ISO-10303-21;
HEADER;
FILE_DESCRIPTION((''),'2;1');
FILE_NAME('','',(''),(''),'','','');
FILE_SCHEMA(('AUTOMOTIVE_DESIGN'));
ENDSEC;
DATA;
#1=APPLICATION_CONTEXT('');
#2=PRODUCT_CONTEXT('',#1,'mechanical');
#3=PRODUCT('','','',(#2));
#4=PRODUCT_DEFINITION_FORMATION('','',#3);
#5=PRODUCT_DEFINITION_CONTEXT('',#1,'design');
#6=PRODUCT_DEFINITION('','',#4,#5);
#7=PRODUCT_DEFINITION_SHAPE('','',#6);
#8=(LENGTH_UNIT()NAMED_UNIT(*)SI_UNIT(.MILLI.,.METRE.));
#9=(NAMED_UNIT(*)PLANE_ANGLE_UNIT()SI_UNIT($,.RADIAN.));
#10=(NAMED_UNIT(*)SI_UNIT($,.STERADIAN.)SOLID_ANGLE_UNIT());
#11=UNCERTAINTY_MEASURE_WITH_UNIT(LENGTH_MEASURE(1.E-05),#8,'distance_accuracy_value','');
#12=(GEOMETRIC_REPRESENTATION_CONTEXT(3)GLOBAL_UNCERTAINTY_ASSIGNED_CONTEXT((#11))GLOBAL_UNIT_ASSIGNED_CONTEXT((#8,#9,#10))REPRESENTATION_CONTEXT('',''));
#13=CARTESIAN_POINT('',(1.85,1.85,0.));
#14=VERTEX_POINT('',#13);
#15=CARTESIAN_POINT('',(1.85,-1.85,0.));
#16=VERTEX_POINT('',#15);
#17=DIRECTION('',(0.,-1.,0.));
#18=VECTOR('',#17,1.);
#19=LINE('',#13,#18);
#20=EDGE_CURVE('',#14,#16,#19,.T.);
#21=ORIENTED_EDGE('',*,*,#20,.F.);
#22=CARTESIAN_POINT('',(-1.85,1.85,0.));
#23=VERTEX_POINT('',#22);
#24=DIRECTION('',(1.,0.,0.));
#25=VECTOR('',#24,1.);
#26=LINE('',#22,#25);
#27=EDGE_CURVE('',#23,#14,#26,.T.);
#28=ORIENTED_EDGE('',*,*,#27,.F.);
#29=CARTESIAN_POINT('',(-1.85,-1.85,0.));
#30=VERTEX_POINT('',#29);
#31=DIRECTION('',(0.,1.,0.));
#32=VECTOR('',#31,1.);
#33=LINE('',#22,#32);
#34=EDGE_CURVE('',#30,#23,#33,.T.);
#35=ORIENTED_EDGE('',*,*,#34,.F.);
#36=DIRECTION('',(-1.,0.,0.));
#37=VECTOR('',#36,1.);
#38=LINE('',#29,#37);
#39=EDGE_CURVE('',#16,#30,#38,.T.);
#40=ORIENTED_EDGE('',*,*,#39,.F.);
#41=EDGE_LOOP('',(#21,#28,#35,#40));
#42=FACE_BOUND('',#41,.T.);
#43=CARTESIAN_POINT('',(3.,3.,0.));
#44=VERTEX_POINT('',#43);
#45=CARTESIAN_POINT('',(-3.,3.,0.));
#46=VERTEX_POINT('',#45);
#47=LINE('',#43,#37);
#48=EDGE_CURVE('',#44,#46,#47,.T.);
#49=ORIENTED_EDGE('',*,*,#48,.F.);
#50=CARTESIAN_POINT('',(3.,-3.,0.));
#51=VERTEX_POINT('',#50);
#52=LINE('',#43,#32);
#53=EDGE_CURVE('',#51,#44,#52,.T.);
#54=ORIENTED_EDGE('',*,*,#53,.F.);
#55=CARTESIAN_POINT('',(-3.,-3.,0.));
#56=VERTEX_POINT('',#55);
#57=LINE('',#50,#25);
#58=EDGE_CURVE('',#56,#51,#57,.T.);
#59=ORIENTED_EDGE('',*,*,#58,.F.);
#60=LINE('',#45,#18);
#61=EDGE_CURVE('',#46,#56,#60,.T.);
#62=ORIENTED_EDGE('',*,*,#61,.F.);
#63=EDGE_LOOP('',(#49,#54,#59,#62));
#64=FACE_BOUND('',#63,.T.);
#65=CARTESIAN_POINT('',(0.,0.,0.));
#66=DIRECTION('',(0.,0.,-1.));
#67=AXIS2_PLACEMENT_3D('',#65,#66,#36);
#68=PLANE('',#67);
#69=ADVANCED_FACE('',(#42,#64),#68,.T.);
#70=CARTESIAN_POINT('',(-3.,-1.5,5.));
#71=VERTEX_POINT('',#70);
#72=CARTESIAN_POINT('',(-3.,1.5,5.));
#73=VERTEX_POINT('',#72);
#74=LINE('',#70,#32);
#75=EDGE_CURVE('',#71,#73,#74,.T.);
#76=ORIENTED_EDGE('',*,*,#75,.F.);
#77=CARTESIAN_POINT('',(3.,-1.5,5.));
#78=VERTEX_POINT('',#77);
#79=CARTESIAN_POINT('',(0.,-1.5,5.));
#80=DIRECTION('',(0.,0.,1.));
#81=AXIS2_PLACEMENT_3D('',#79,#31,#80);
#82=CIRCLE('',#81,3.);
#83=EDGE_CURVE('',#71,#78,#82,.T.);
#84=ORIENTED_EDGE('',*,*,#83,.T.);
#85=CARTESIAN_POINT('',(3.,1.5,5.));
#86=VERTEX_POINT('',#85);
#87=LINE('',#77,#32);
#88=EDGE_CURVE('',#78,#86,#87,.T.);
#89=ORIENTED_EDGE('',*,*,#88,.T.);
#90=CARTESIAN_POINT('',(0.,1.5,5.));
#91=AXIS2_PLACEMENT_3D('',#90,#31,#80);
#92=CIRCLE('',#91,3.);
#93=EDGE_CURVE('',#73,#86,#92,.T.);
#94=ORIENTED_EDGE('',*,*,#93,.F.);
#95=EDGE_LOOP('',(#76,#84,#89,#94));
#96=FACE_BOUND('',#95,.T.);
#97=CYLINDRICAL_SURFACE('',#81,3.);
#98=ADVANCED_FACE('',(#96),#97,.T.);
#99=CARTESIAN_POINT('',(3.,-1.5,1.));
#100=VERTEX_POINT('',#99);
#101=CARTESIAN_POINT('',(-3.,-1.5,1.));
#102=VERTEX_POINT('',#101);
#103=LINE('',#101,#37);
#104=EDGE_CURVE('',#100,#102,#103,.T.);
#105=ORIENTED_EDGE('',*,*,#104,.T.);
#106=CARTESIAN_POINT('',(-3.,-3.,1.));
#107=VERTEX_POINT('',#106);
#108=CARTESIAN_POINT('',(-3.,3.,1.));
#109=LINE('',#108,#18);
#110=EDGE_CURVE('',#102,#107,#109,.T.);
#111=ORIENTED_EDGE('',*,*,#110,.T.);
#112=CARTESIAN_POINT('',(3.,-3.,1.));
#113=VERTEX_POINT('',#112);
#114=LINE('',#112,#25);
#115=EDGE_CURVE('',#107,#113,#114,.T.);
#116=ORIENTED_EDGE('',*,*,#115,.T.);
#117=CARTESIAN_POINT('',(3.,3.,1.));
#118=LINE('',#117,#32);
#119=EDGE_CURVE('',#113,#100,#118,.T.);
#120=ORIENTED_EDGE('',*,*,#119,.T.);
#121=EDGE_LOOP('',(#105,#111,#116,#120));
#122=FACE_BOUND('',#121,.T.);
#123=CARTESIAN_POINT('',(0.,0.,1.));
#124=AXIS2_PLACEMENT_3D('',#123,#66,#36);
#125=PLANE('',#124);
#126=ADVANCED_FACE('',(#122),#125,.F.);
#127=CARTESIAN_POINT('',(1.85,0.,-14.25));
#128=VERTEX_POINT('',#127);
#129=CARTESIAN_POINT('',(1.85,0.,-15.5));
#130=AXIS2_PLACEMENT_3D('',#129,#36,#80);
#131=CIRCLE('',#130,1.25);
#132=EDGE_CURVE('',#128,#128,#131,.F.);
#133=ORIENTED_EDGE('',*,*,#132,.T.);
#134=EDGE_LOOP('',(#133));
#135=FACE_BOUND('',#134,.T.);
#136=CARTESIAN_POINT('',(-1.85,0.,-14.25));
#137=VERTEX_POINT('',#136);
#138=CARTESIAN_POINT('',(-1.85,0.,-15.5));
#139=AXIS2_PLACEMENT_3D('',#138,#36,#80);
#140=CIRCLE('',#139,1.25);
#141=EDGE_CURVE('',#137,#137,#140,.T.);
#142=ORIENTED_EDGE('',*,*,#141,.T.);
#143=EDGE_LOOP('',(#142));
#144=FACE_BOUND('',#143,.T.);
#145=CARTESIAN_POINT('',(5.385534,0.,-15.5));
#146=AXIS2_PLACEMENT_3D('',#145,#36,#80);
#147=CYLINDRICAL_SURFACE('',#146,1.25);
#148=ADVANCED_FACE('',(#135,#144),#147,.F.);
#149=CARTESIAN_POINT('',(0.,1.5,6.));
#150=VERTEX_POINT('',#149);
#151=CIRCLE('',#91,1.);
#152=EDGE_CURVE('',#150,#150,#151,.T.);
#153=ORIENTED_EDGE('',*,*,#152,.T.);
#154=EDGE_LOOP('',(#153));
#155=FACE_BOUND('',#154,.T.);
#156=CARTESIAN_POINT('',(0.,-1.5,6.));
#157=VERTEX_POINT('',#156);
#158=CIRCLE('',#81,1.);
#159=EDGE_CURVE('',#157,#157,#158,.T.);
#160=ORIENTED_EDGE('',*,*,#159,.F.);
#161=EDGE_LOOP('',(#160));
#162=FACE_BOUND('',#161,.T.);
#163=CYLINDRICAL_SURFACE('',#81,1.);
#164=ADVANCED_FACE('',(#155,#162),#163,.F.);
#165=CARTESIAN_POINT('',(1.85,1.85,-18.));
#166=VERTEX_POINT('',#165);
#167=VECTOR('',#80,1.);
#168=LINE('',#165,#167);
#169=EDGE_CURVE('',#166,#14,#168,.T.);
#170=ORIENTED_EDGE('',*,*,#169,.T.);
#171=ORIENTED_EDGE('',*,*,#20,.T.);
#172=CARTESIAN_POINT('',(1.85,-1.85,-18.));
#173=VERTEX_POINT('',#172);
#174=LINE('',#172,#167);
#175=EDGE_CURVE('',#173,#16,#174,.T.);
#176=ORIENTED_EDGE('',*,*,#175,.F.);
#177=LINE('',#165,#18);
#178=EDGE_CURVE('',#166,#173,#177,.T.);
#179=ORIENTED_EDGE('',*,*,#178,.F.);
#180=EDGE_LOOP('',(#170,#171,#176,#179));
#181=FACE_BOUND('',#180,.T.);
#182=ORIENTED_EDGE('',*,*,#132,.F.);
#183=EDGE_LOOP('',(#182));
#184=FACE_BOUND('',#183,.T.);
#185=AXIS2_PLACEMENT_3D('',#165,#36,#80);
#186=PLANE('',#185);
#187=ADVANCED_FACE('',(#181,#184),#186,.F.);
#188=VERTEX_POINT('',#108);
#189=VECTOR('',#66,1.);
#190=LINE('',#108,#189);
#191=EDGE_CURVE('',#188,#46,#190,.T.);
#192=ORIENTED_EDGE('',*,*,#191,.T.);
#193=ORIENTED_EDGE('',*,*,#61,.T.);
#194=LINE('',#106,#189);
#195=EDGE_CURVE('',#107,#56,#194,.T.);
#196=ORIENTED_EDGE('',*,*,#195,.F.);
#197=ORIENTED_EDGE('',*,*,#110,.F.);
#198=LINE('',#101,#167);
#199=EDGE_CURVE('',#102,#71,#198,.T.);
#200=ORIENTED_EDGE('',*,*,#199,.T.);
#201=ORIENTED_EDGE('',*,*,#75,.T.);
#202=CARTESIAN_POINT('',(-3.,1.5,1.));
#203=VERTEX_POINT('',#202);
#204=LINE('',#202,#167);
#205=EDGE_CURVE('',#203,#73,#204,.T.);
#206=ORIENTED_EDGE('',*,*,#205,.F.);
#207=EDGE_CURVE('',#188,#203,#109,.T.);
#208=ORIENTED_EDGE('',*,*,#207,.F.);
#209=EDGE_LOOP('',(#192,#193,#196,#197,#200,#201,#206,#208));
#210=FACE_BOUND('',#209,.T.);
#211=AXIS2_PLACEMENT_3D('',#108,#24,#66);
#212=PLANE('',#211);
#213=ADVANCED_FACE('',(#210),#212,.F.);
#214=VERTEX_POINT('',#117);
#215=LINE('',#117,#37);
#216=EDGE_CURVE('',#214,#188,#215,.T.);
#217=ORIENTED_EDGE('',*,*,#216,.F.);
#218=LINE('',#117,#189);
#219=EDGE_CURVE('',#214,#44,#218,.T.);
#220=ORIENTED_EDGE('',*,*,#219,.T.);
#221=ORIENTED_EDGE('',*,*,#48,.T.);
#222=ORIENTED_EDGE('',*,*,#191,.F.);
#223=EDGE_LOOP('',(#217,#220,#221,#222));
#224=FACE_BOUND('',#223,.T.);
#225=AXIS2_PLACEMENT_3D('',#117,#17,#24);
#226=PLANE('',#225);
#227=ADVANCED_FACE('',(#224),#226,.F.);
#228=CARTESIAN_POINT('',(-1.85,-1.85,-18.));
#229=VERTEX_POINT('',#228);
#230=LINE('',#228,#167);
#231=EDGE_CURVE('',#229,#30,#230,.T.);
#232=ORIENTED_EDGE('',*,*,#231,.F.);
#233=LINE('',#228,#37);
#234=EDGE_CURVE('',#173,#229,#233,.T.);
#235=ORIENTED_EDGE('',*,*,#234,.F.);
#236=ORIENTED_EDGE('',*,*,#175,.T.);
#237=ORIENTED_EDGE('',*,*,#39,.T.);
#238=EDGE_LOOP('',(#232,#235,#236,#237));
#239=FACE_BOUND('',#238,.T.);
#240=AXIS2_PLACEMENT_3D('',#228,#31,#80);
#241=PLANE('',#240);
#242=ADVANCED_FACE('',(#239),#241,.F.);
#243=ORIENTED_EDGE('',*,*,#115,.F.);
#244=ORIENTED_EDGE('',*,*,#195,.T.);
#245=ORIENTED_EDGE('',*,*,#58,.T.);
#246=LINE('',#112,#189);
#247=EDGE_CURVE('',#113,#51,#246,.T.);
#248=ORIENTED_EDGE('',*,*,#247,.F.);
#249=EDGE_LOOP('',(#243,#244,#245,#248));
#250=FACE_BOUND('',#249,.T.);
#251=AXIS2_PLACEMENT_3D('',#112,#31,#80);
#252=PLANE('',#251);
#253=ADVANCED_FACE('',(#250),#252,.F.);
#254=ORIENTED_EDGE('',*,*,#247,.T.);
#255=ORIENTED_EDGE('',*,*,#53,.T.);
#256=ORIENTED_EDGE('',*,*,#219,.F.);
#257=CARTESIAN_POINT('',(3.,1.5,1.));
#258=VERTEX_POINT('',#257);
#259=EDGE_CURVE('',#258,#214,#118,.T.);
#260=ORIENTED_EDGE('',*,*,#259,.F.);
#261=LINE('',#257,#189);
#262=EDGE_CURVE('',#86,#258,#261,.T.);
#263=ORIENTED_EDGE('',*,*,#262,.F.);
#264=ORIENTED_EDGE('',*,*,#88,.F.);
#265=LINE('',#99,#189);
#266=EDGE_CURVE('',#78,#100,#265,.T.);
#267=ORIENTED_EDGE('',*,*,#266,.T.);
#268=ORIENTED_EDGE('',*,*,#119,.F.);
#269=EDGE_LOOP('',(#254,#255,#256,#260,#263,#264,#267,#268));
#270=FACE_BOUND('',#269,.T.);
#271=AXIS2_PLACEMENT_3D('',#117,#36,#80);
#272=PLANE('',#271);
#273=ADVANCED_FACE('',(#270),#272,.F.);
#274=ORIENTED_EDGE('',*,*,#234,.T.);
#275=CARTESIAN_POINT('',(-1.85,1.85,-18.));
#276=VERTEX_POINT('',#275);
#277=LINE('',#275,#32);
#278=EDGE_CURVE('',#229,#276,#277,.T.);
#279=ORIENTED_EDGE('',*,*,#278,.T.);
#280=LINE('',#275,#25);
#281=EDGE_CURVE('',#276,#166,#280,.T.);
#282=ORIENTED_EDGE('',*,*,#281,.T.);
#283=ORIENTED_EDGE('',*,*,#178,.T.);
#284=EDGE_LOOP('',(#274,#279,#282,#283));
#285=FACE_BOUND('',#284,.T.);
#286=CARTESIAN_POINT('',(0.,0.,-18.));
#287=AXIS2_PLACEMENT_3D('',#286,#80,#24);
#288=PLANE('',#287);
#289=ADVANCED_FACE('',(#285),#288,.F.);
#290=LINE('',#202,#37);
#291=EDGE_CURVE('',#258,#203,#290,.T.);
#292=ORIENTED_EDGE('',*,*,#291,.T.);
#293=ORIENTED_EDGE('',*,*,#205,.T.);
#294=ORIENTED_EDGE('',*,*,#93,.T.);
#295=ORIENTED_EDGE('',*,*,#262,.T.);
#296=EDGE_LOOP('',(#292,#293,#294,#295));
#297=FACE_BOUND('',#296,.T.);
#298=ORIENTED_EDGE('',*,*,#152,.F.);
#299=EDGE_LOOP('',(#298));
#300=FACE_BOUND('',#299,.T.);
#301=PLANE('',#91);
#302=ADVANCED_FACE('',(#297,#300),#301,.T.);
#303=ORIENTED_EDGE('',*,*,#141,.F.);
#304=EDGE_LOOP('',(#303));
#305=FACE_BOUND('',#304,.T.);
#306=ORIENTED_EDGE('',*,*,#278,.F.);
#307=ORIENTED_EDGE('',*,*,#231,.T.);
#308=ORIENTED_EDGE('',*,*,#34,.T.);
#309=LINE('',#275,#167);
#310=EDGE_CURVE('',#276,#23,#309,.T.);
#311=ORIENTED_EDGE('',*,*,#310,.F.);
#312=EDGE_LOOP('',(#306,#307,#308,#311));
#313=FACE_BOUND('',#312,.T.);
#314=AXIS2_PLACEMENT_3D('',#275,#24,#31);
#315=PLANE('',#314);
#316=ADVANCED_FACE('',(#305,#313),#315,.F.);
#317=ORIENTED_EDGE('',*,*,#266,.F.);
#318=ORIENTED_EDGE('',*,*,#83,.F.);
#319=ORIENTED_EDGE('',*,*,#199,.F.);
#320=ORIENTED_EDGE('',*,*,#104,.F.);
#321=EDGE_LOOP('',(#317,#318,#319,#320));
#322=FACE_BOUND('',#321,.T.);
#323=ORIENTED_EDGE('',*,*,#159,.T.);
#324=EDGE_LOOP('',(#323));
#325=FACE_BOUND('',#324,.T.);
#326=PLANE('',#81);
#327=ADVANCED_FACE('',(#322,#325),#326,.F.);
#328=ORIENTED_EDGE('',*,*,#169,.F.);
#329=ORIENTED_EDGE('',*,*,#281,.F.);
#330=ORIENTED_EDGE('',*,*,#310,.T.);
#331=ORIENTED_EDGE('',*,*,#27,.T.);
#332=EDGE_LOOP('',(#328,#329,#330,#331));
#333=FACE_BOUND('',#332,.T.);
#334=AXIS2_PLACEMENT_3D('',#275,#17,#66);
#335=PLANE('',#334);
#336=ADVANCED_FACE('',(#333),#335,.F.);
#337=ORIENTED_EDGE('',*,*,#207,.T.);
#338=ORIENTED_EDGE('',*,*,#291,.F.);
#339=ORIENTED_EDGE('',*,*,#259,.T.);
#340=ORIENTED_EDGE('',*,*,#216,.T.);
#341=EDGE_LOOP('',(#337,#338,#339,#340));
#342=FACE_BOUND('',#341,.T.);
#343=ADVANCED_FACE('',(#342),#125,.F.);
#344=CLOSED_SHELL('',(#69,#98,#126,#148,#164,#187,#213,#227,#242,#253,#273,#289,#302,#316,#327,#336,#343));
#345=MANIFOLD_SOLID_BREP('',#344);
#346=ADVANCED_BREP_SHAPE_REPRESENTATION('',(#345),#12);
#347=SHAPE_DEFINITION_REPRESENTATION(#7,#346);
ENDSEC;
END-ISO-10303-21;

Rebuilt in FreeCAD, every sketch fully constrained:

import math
import FreeCAD as App
import Part
import Sketcher
Q = App.Units.Quantity

doc = App.newDocument("Part")
params = doc.addObject("Spreadsheet::Sheet", "Params")
for row, (alias, value) in enumerate([
    ("sketch1_width", "6 mm"),
    ("pad1_length", "1 mm"),
    ("sketch2_diameter", "2 mm"),
    ("sketch2_radius", "3 mm"),
    ("sketch2_height", "4 mm"),
    ("pad2_length", "1.5 mm"),
    ("pad2_length2", "1.5 mm"),
    ("sketch3_width", "3.7 mm"),
    ("pad3_length", "18 mm"),
    ("sketch4_diameter", "2.5 mm"),
    ("pocket1_length", "3.7 mm"),
], start=1):
    params.set(f"A{row}", alias)
    params.set(f"B{row}", "=" + value)
    params.setAlias(f"B{row}", alias)

body = doc.addObject("PartDesign::Body", "Body")

# Sketch on XY plane
sketch1 = body.newObject("Sketcher::SketchObject", "Sketch")
sketch1.AttachmentSupport = (doc.getObject("XY_Plane"), [""])
sketch1.MapMode = "FlatFace"
sketch1.addGeometry([
    Part.LineSegment(App.Vector(-3, 3, 0), App.Vector(-3, -3, 0)),
    Part.LineSegment(App.Vector(-3, -3, 0), App.Vector(3, -3, 0)),
    Part.LineSegment(App.Vector(3, -3, 0), App.Vector(3, 3, 0)),
    Part.LineSegment(App.Vector(3, 3, 0), App.Vector(-3, 3, 0)),
], False)
sketch1.addConstraint([
    Sketcher.Constraint("Coincident", 0, 2, 1, 1),
    Sketcher.Constraint("Coincident", 1, 2, 2, 1),
    Sketcher.Constraint("Coincident", 2, 2, 3, 1),
    Sketcher.Constraint("Coincident", 3, 2, 0, 1),
    Sketcher.Constraint("Vertical", 0),
    Sketcher.Constraint("Horizontal", 1),
    Sketcher.Constraint("Vertical", 2),
    Sketcher.Constraint("Horizontal", 3),
    Sketcher.Constraint("Symmetric", 0, 2, 2, 2, -1, 1),
    Sketcher.Constraint("Equal", 3, 0),
    Sketcher.Constraint("DistanceX", 1, 1, 1, 2, Q("6 mm")),
])
sketch1.setExpression("Constraints[10]", "Params.sketch1_width")
pad1 = body.newObject("PartDesign::Pad", "Pad")
pad1.Profile = sketch1
pad1.setExpression("Length", "Params.pad1_length")

# Sketch on XZ plane
sketch2 = body.newObject("Sketcher::SketchObject", "Sketch001")
sketch2.AttachmentSupport = (doc.getObject("XZ_Plane"), [""])
sketch2.MapMode = "FlatFace"
sketch2.addGeometry([
    Part.LineSegment(App.Vector(3, 1, 0), App.Vector(-3, 1, 0)),  # 0
    Part.LineSegment(App.Vector(-3, 1, 0), App.Vector(-3, 5, 0)),  # 1
    Part.ArcOfCircle(Part.Circle(App.Vector(0, 5, 0), App.Vector(0, 0, 1), 3), math.radians(0), math.radians(180)),  # 2
    Part.LineSegment(App.Vector(3, 5, 0), App.Vector(3, 1, 0)),  # 3
    Part.Circle(App.Vector(0, 5, 0), App.Vector(0, 0, 1), 1),  # 4
], False)
sketch2.addConstraint([
    Sketcher.Constraint("Coincident", 0, 2, 1, 1),
    Sketcher.Constraint("Tangent", 1, 2, 2, 2),
    Sketcher.Constraint("Tangent", 2, 1, 3, 1),
    Sketcher.Constraint("Coincident", 3, 2, 0, 1),
    Sketcher.Constraint("Horizontal", 0),
    Sketcher.Constraint("Vertical", 1),
    Sketcher.Constraint("Vertical", 3),
    Sketcher.Constraint("Coincident", 4, 3, 2, 3),
    Sketcher.Constraint("PointOnObject", 2, 3, -2),
    Sketcher.Constraint("Diameter", 4, Q("2 mm")),
    Sketcher.Constraint("Radius", 2, Q("3 mm")),
    Sketcher.Constraint("DistanceY", 1, 1, 1, 2, Q("4 mm")),
    Sketcher.Constraint("DistanceY", -1, 1, 2, 3, Q("5 mm")),
])
sketch2.setExpression("Constraints[9]", "Params.sketch2_diameter")
sketch2.setExpression("Constraints[10]", "Params.sketch2_radius")
sketch2.setExpression("Constraints[11]", "Params.sketch2_height")
pad2 = body.newObject("PartDesign::Pad", "Pad001")
pad2.Profile = sketch2
pad2.Type = "TwoLengths"
pad2.setExpression("Length", "Params.pad2_length")
pad2.setExpression("Length2", "Params.pad2_length2")
pad2.Reversed = True

# Sketch on XY plane
sketch3 = body.newObject("Sketcher::SketchObject", "Sketch002")
sketch3.AttachmentSupport = (doc.getObject("XY_Plane"), [""])
sketch3.MapMode = "FlatFace"
sketch3.addGeometry([
    Part.LineSegment(App.Vector(1.9, 1.9, 0), App.Vector(1.9, -1.9, 0)),
    Part.LineSegment(App.Vector(1.9, -1.9, 0), App.Vector(-1.9, -1.9, 0)),
    Part.LineSegment(App.Vector(-1.9, -1.9, 0), App.Vector(-1.9, 1.9, 0)),
    Part.LineSegment(App.Vector(-1.9, 1.9, 0), App.Vector(1.9, 1.9, 0)),
], False)
sketch3.addConstraint([
    Sketcher.Constraint("Coincident", 0, 2, 1, 1),
    Sketcher.Constraint("Coincident", 1, 2, 2, 1),
    Sketcher.Constraint("Coincident", 2, 2, 3, 1),
    Sketcher.Constraint("Coincident", 3, 2, 0, 1),
    Sketcher.Constraint("Vertical", 0),
    Sketcher.Constraint("Horizontal", 1),
    Sketcher.Constraint("Vertical", 2),
    Sketcher.Constraint("Horizontal", 3),
    Sketcher.Constraint("Symmetric", 0, 2, 2, 2, -1, 1),
    Sketcher.Constraint("Equal", 3, 0),
    Sketcher.Constraint("DistanceX", 1, 2, 1, 1, Q("3.7 mm")),
])
sketch3.setExpression("Constraints[10]", "Params.sketch3_width")
pad3 = body.newObject("PartDesign::Pad", "Pad002")
pad3.Profile = sketch3
pad3.setExpression("Length", "Params.pad3_length")
pad3.Reversed = True

# Sketch on YZ plane
sketch4 = body.newObject("Sketcher::SketchObject", "Sketch003")
sketch4.AttachmentSupport = (doc.getObject("YZ_Plane"), [""])
sketch4.MapMode = "FlatFace"
sketch4.AttachmentOffset = App.Placement(App.Vector(0, 0, -1.85), App.Rotation())
sketch4.addGeometry(Part.Circle(App.Vector(0, -15.5, 0), App.Vector(0, 0, 1), 1.2), False)
sketch4.addConstraint([
    Sketcher.Constraint("PointOnObject", 0, 3, -2),
    Sketcher.Constraint("Diameter", 0, Q("2.5 mm")),
    Sketcher.Constraint("DistanceY", 0, 3, -1, 1, Q("15.5 mm")),
])
sketch4.setExpression("Constraints[1]", "Params.sketch4_diameter")
pocket1 = body.newObject("PartDesign::Pocket", "Pocket")
pocket1.Profile = sketch4
pocket1.setExpression("Length", "Params.pocket1_length")
pocket1.Reversed = True

doc.recompute()
